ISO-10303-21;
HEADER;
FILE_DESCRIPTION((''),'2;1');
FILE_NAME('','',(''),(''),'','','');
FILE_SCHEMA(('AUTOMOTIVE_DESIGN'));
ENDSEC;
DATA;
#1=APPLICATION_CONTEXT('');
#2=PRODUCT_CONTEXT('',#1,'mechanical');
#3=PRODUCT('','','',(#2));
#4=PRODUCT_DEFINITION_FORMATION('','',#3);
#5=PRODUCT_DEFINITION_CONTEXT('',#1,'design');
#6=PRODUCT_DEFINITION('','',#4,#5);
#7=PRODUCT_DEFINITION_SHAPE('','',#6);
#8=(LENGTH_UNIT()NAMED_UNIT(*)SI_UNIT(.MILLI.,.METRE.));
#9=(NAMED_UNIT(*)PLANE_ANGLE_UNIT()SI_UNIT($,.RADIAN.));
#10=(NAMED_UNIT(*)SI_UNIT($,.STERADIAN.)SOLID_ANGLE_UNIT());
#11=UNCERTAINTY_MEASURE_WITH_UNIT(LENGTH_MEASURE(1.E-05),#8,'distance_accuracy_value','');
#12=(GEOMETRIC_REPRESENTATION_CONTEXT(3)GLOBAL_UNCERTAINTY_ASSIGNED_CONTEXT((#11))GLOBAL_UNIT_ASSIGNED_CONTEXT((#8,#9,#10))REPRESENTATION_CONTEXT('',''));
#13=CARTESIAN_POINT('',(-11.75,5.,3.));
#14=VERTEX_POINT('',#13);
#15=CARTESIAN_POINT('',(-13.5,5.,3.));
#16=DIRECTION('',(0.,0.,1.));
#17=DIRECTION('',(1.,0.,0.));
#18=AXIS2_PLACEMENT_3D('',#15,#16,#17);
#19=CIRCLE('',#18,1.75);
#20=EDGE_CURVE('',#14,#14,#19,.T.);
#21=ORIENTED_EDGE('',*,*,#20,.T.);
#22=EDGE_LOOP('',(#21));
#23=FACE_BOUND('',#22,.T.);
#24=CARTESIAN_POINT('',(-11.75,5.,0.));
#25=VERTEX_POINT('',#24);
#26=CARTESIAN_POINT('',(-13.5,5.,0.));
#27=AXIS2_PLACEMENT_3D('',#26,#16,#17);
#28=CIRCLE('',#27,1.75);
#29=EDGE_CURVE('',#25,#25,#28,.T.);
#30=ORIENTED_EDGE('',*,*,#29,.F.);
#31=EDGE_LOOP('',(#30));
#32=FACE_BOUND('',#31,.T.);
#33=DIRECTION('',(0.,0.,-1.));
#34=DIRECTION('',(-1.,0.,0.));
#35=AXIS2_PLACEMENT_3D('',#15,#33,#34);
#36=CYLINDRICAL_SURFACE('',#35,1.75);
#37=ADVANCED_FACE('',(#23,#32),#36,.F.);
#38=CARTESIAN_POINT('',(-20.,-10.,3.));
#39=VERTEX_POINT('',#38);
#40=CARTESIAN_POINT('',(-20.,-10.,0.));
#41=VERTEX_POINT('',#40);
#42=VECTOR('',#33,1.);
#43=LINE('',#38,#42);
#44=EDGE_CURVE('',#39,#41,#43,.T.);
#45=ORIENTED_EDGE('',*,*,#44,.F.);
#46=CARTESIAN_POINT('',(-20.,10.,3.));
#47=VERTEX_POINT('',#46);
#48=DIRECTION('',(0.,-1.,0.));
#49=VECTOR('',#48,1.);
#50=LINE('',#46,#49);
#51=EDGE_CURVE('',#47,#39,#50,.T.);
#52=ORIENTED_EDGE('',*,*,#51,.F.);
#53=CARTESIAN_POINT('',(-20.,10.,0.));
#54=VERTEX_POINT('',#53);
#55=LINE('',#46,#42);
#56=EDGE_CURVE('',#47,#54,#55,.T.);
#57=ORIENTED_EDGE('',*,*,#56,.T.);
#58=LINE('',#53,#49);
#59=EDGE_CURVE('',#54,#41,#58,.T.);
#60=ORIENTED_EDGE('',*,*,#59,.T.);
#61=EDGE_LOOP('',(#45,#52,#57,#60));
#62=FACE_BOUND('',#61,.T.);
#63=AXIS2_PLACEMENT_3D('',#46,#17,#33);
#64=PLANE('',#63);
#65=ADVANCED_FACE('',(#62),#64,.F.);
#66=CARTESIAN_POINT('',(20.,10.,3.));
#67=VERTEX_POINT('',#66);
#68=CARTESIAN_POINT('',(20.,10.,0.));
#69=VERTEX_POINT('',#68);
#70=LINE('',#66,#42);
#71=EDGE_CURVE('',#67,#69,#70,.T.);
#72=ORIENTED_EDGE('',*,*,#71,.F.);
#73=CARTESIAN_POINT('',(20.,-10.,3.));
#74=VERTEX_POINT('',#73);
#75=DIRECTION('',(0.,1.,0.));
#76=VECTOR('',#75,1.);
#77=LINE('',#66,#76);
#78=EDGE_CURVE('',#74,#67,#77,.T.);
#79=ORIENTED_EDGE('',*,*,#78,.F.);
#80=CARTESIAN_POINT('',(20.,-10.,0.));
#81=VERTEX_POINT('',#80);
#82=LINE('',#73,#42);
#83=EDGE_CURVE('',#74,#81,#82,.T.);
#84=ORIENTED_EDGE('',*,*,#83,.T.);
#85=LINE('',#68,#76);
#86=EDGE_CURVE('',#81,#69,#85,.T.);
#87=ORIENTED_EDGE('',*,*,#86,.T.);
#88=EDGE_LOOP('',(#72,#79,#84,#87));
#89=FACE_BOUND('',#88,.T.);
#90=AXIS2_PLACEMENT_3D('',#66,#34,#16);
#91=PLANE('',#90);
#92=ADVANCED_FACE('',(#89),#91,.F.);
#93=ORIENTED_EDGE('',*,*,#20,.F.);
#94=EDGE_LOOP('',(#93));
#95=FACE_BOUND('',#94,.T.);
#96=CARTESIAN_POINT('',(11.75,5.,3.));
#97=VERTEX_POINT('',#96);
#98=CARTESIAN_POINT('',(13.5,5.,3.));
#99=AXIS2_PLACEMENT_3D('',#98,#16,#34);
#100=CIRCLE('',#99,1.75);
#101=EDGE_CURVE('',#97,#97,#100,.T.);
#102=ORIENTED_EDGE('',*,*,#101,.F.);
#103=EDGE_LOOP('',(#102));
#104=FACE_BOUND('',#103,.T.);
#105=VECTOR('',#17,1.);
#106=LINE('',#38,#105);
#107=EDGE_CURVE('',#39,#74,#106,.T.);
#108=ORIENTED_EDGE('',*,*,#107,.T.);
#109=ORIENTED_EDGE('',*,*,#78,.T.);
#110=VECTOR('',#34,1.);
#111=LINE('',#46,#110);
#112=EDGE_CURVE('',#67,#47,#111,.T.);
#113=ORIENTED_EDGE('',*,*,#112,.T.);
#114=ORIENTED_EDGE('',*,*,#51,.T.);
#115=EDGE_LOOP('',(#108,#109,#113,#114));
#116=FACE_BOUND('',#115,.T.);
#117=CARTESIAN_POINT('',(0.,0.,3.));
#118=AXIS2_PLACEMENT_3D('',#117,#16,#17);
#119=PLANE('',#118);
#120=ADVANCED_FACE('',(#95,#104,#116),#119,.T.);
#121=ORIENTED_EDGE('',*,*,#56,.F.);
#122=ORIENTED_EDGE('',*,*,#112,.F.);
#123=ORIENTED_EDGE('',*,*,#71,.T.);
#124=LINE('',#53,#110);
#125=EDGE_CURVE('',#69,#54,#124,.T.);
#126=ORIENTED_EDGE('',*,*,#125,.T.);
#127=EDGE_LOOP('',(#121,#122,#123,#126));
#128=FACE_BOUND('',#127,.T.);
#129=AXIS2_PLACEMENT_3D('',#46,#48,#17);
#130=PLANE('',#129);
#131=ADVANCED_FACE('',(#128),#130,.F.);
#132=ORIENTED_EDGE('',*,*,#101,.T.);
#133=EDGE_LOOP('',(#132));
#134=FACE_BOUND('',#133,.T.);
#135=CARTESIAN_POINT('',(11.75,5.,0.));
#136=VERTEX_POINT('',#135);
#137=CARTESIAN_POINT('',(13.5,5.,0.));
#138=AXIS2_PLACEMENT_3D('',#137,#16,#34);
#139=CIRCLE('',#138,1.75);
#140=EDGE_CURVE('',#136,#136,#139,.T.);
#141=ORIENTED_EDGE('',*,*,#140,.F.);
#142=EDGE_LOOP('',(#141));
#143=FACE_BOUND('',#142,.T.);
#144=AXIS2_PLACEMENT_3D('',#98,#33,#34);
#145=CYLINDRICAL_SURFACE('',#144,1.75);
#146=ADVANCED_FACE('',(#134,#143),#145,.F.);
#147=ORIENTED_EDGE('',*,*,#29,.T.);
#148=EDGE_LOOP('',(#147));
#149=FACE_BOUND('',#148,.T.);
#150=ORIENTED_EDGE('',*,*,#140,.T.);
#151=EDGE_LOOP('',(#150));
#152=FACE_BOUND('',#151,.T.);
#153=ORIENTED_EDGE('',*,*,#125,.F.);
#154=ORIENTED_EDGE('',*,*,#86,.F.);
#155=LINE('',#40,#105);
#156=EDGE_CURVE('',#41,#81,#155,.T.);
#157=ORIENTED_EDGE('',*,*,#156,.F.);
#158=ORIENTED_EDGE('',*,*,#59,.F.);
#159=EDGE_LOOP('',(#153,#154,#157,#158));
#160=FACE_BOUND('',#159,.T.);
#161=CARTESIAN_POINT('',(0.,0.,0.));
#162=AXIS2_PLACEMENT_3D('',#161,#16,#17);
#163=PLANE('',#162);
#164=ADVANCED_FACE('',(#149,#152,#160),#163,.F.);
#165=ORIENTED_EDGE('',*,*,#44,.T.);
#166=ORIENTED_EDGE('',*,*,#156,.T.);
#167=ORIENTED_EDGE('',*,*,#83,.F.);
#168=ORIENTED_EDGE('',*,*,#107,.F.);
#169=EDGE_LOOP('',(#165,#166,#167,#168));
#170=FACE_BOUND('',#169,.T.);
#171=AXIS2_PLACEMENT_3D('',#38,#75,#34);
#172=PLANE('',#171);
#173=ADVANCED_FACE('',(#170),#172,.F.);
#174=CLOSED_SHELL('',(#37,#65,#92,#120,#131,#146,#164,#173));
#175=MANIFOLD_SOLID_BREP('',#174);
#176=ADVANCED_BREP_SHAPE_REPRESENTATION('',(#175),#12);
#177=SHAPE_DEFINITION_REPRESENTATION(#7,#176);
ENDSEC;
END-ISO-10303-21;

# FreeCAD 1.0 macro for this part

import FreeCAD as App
import Part
import Sketcher
Q = App.Units.Quantity


def add_polygon(sketch, points):
    """Adds a closed chain of lines whose ends are joined by coincident constraints."""
    first, n = sketch.GeometryCount, len(points)
    for a, b in zip(points, points[1:] + points[:1]):
        sketch.addGeometry(Part.LineSegment(App.Vector(*a, 0), App.Vector(*b, 0)), False)
    for i in range(n):
        sketch.addConstraint(Sketcher.Constraint("Coincident", first + i, 2, first + (i + 1) % n, 1))

doc = App.newDocument("Part")
params = doc.addObject("Spreadsheet::Sheet", "Params")
for row, (alias, value) in enumerate([
    ("sketch1_diameter", "3.5 mm"),
    ("sketch1_width", "40 mm"),
    ("sketch1_height", "20 mm"),
    ("pad1_length", "3 mm"),
], start=1):
    params.set(f"A{row}", alias)
    params.set(f"B{row}", "=" + value)
    params.setAlias(f"B{row}", alias)

body = doc.addObject("PartDesign::Body", "Body")

# Sketch on XY plane
sketch1 = body.newObject("Sketcher::SketchObject", "Sketch")
sketch1.AttachmentSupport = (doc.getObject("XY_Plane"), [""])
sketch1.MapMode = "FlatFace"
add_polygon(sketch1, [(-20, 10), (-20, -10), (20, -10), (20, 10)])  # lines 0-3
sketch1.addGeometry(Part.Circle(App.Vector(-13.5, 5, 0), App.Vector(0, 0, 1), 1.8), False)  # 4
sketch1.addGeometry(Part.Circle(App.Vector(13.5, 5, 0), App.Vector(0, 0, 1), 1.8), False)  # 5
sketch1.addConstraint(Sketcher.Constraint("Vertical", 0))
sketch1.addConstraint(Sketcher.Constraint("Horizontal", 1))
sketch1.addConstraint(Sketcher.Constraint("Vertical", 2))
sketch1.addConstraint(Sketcher.Constraint("Horizontal", 3))
sketch1.addConstraint(Sketcher.Constraint("Equal", 4, 5))
sketch1.addConstraint(Sketcher.Constraint("Symmetric", 0, 2, 2, 2, -1, 1))
sketch1.addConstraint(Sketcher.Constraint("Symmetric", 4, 3, 5, 3, -2))
sketch1.addConstraint(Sketcher.Constraint("Diameter", 4, Q("3.5 mm")))
sketch1.addConstraint(Sketcher.Constraint("DistanceX", 1, 1, 1, 2, Q("40 mm")))
sketch1.addConstraint(Sketcher.Constraint("DistanceY", 0, 2, 0, 1, Q("20 mm")))
sketch1.addConstraint(Sketcher.Constraint("DistanceY", -1, 1, 4, 3, Q("5 mm")))
sketch1.addConstraint(Sketcher.Constraint("DistanceX", 4, 3, 5, 3, Q("27 mm")))
sketch1.setExpression("Constraints[11]", "Params.sketch1_diameter")
sketch1.setExpression("Constraints[12]", "Params.sketch1_width")
sketch1.setExpression("Constraints[13]", "Params.sketch1_height")
pad1 = body.newObject("PartDesign::Pad", "Pad")
pad1.Profile = sketch1
pad1.setExpression("Length", "Params.pad1_length")

doc.recompute()
